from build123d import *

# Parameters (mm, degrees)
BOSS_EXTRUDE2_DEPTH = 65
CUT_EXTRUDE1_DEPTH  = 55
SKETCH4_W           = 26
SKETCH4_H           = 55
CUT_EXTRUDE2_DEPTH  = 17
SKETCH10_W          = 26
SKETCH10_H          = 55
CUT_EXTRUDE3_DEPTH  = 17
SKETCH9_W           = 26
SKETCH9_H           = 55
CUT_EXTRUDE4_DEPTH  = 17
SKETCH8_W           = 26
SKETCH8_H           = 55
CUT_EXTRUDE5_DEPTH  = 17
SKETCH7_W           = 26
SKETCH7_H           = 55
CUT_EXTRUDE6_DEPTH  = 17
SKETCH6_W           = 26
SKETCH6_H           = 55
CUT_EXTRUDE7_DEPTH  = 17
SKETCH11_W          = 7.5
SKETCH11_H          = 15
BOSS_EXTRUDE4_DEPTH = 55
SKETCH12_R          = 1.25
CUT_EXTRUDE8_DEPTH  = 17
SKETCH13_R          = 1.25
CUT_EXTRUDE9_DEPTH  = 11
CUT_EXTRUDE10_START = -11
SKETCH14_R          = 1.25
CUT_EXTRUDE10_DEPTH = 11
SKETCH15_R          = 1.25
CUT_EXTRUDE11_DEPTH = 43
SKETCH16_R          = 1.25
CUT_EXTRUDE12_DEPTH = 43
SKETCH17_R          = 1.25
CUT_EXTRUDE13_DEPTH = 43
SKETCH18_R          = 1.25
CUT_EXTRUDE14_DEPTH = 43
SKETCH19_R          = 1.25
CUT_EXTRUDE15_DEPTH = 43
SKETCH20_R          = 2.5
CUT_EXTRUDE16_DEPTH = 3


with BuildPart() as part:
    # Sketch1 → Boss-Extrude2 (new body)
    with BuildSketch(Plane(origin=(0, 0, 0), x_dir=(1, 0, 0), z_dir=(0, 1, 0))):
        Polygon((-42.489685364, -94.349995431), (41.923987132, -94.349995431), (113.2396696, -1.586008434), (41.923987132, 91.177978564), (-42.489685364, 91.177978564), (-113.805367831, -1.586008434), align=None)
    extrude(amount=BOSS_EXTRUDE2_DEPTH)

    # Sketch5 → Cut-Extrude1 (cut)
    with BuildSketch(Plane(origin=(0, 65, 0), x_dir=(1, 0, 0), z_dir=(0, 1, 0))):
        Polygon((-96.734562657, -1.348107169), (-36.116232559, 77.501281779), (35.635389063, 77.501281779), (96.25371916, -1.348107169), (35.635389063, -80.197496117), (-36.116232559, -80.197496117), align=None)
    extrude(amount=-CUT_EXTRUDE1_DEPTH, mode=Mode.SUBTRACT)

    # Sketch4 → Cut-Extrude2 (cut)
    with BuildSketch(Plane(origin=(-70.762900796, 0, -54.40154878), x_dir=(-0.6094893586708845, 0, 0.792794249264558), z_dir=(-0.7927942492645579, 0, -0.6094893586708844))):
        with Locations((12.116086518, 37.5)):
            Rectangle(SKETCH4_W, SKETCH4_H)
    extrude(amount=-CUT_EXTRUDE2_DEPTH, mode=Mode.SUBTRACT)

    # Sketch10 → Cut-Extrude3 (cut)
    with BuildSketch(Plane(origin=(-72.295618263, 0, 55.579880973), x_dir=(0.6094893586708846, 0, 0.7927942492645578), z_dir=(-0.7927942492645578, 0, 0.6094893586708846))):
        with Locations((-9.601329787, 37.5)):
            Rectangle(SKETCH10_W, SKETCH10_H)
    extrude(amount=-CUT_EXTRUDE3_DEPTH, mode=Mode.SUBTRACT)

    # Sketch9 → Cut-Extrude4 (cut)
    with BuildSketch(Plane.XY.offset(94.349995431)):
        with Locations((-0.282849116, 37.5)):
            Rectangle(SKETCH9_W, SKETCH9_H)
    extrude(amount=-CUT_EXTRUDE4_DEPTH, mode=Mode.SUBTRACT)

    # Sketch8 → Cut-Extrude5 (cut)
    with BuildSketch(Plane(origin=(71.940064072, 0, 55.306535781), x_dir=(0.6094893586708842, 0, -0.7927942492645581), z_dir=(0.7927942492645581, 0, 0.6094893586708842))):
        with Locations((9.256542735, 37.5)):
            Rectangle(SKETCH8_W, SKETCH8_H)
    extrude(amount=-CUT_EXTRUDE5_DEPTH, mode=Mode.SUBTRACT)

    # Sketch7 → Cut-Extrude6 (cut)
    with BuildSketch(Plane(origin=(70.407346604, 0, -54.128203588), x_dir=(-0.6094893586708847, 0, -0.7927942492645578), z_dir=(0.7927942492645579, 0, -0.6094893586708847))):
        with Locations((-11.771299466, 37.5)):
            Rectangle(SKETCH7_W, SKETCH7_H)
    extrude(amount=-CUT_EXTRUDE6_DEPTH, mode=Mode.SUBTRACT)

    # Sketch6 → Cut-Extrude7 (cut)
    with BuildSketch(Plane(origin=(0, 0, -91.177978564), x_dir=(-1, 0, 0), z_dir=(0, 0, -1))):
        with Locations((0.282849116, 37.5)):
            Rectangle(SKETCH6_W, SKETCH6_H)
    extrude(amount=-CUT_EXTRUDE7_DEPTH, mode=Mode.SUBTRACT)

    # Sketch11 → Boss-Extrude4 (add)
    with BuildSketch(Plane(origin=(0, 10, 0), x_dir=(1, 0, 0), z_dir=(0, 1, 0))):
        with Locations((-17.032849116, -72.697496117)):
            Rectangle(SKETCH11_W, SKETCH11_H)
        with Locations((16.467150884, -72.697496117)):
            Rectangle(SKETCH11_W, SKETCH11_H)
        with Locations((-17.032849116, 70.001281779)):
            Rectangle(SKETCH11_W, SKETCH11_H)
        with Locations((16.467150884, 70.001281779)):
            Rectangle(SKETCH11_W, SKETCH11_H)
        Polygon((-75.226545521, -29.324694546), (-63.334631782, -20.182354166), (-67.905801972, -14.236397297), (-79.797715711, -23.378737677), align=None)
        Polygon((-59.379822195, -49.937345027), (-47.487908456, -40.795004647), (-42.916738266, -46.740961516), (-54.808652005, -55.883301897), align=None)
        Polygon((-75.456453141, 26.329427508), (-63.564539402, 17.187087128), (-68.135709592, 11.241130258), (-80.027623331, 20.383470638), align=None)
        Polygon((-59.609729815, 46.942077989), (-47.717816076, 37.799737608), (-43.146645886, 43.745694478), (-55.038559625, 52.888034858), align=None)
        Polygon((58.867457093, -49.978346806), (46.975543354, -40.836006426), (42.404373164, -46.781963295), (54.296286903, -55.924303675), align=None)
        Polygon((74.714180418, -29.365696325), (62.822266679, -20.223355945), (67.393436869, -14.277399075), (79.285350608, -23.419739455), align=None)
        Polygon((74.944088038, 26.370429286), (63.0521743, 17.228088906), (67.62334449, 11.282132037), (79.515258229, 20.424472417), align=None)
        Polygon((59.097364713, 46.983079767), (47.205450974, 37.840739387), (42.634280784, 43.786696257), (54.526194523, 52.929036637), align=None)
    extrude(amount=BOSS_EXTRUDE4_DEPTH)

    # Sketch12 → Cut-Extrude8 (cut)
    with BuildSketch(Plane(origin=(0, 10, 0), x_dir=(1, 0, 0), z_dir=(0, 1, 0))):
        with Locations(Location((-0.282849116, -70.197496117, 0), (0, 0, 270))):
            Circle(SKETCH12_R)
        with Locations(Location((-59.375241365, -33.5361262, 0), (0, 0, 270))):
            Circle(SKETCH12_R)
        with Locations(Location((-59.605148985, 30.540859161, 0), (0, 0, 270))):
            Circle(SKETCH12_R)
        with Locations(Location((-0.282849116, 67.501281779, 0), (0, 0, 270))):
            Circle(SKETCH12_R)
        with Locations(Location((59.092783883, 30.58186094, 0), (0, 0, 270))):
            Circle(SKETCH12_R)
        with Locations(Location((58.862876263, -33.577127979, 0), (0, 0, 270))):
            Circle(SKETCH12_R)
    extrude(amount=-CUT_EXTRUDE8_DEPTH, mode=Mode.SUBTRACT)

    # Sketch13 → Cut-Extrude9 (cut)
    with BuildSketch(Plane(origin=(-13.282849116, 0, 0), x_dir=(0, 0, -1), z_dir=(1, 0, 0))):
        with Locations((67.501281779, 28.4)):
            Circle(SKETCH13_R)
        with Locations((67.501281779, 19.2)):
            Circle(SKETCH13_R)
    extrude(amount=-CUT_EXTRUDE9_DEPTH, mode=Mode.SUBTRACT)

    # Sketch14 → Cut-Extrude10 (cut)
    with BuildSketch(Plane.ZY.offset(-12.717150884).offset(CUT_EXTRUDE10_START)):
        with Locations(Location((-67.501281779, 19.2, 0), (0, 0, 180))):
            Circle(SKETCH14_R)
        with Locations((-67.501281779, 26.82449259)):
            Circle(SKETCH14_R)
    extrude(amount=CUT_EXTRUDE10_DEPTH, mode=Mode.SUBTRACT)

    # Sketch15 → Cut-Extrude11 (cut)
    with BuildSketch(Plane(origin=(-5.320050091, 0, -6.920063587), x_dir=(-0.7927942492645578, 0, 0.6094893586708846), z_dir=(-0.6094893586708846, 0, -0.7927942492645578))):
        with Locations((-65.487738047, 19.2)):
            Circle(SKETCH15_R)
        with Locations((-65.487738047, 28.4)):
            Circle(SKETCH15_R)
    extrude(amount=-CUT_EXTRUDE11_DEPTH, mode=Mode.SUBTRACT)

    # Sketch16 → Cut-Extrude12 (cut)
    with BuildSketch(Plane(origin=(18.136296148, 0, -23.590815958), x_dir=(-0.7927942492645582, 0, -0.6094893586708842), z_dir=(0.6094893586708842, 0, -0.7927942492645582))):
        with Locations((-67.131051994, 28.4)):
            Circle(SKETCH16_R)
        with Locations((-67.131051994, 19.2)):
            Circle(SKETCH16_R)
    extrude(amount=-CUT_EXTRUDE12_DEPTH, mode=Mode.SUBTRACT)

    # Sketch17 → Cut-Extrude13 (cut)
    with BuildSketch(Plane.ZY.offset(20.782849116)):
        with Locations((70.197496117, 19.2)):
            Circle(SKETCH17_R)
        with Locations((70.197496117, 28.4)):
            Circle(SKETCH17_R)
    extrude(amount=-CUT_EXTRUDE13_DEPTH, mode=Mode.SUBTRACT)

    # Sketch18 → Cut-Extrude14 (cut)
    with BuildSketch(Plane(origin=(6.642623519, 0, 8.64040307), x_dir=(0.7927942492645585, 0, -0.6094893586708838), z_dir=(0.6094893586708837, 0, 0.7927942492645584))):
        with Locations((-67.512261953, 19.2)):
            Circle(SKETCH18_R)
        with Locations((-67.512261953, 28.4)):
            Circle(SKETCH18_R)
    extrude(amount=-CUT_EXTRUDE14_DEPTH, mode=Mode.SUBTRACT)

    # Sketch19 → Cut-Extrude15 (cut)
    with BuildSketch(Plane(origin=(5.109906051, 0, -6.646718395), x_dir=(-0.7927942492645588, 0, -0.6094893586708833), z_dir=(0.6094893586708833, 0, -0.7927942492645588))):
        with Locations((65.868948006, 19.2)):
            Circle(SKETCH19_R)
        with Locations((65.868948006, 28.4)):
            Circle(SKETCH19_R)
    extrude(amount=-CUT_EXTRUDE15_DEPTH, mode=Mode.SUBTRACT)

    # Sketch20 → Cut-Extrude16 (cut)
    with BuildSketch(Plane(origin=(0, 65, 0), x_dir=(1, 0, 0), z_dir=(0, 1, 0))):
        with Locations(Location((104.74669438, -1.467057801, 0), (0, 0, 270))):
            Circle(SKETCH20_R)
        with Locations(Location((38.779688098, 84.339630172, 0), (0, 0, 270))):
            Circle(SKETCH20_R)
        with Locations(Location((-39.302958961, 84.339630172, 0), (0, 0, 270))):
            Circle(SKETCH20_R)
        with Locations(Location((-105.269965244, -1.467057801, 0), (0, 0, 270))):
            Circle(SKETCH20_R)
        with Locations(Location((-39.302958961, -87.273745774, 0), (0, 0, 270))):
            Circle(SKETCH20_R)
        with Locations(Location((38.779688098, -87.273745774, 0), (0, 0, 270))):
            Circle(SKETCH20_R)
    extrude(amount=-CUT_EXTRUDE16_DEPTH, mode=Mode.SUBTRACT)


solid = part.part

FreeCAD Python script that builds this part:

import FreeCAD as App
import Part
import Sketcher
Q = App.Units.Quantity

doc = App.newDocument("Part")
body = doc.addObject("PartDesign::Body", "Body")

sketch1 = body.newObject("Sketcher::SketchObject", "Sketch")
sketch1.AttachmentSupport = (doc.getObject("XZ_Plane"), [""])
sketch1.MapMode = "FlatFace"
sketch1.addGeometry(Part.LineSegment(App.Vector(-42.489685, 94.349995, 0), App.Vector(41.923987, 94.349995, 0)), False)
sketch1.addGeometry(Part.LineSegment(App.Vector(41.923987, 94.349995, 0), App.Vector(113.23967, 1.586008, 0)), False)
sketch1.addGeometry(Part.LineSegment(App.Vector(113.23967, 1.586008, 0), App.Vector(41.923987, -91.177979, 0)), False)
sketch1.addGeometry(Part.LineSegment(App.Vector(41.923987, -91.177979, 0), App.Vector(-42.489685, -91.177979, 0)), False)
sketch1.addGeometry(Part.LineSegment(App.Vector(-42.489685, -91.177979, 0), App.Vector(-113.805368, 1.586008, 0)), False)
sketch1.addGeometry(Part.LineSegment(App.Vector(-113.805368, 1.586008, 0), App.Vector(-42.489685, 94.349995, 0)), False)
sketch1.addConstraint(Sketcher.Constraint("Coincident", 0, 2, 1, 1))
sketch1.addConstraint(Sketcher.Constraint("Coincident", 1, 2, 2, 1))
sketch1.addConstraint(Sketcher.Constraint("Coincident", 2, 2, 3, 1))
sketch1.addConstraint(Sketcher.Constraint("Coincident", 3, 2, 4, 1))
sketch1.addConstraint(Sketcher.Constraint("Coincident", 4, 2, 5, 1))
sketch1.addConstraint(Sketcher.Constraint("Coincident", 5, 2, 0, 1))
sketch1.addConstraint(Sketcher.Constraint("Horizontal", 0))
sketch1.addConstraint(Sketcher.Constraint("Horizontal", 3))
sketch1.addConstraint(Sketcher.Constraint("Parallel", 1, 4))
sketch1.addConstraint(Sketcher.Constraint("Parallel", 2, 5))
sketch1.addConstraint(Sketcher.Constraint("Horizontal", 1, 2, 4, 2))
sketch1.addConstraint(Sketcher.Constraint("Vertical", 0, 2, 2, 2))
sketch1.addConstraint(Sketcher.Constraint("Vertical", 3, 2, 5, 2))
sketch1.addConstraint(Sketcher.Constraint("DistanceX", 0, 1, 0, 2, Q("84.413672 mm")))
sketch1.addConstraint(Sketcher.Constraint("DistanceX", -1, 1, 1, 2, Q("113.23967 mm")))
sketch1.addConstraint(Sketcher.Constraint("DistanceY", -1, 1, 1, 2, Q("1.586008 mm")))
sketch1.addConstraint(Sketcher.Constraint("DistanceY", 2, 2, -1, 1, Q("91.177979 mm")))
sketch1.addConstraint(Sketcher.Constraint("Distance", 1, Q("117.008905 mm")))
pad1 = body.newObject("PartDesign::Pad", "Pad")
pad1.Profile = sketch1
pad1.Length = 65
pad1.Reversed = True

sketch2 = body.newObject("Sketcher::SketchObject", "Sketch001")
sketch2.AttachmentSupport = (doc.getObject("XZ_Plane"), [""])
sketch2.MapMode = "FlatFace"
sketch2.AttachmentOffset = App.Placement(App.Vector(0, 0, -65), App.Rotation())
sketch2.addGeometry(Part.LineSegment(App.Vector(-36.116233, -77.501282, 0), App.Vector(-96.734563, 1.348107, 0)), False)
sketch2.addGeometry(Part.LineSegment(App.Vector(-96.734563, 1.348107, 0), App.Vector(-36.116233, 80.197496, 0)), False)
sketch2.addGeometry(Part.LineSegment(App.Vector(-36.116233, 80.197496, 0), App.Vector(35.635389, 80.197496, 0)), False)
sketch2.addGeometry(Part.LineSegment(App.Vector(35.635389, 80.197496, 0), App.Vector(96.253719, 1.348107, 0)), False)
sketch2.addGeometry(Part.LineSegment(App.Vector(96.253719, 1.348107, 0), App.Vector(35.635389, -77.501282, 0)), False)
sketch2.addGeometry(Part.LineSegment(App.Vector(35.635389, -77.501282, 0), App.Vector(-36.116233, -77.501282, 0)), False)
sketch2.addConstraint(Sketcher.Constraint("Coincident", 0, 2, 1, 1))
sketch2.addConstraint(Sketcher.Constraint("Coincident", 1, 2, 2, 1))
sketch2.addConstraint(Sketcher.Constraint("Coincident", 2, 2, 3, 1))
sketch2.addConstraint(Sketcher.Constraint("Coincident", 3, 2, 4, 1))
sketch2.addConstraint(Sketcher.Constraint("Coincident", 4, 2, 5, 1))
sketch2.addConstraint(Sketcher.Constraint("Coincident", 5, 2, 0, 1))
sketch2.addConstraint(Sketcher.Constraint("Horizontal", 2))
sketch2.addConstraint(Sketcher.Constraint("Horizontal", 5))
sketch2.addConstraint(Sketcher.Constraint("Parallel", 0, 3))
sketch2.addConstraint(Sketcher.Constraint("Parallel", 1, 4))
sketch2.addConstraint(Sketcher.Constraint("Horizontal", 0, 2, 3, 2))
sketch2.addConstraint(Sketcher.Constraint("Vertical", 2, 2, 4, 2))
sketch2.addConstraint(Sketcher.Constraint("Vertical", 1, 2, 5, 2))
sketch2.addConstraint(Sketcher.Constraint("DistanceX", 2, 1, 2, 2, Q("71.751622 mm")))
sketch2.addConstraint(Sketcher.Constraint("Distance", 0, Q("99.457569 mm")))
sketch2.addConstraint(Sketcher.Constraint("DistanceX", -1, 1, 2, 2, Q("35.635389 mm")))
sketch2.addConstraint(Sketcher.Constraint("DistanceX", -1, 1, 3, 2, Q("96.253719 mm")))
sketch2.addConstraint(Sketcher.Constraint("DistanceY", 4, 2, -1, 1, Q("77.501282 mm")))
pocket1 = body.newObject("PartDesign::Pocket", "Pocket")
pocket1.Profile = sketch2
pocket1.Length = 55
pocket1.Reversed = True

sketch3 = body.newObject("Sketcher::SketchObject", "Sketch002")
sketch3.Placement = App.Placement(App.Vector(-70.762901, 0, -54.401549), App.Rotation(App.Vector(-0.609489359, 0, 0.792794249), App.Vector(0, 1, 0), App.Vector(-0.792794249, 0, -0.609489359), "ZXY"))
sketch3.addGeometry(Part.LineSegment(App.Vector(-0.883913, 65, 0), App.Vector(-0.883913, 10, 0)), False)
sketch3.addGeometry(Part.LineSegment(App.Vector(-0.883913, 10, 0), App.Vector(25.116087, 10, 0)), False)
sketch3.addGeometry(Part.LineSegment(App.Vector(25.116087, 10, 0), App.Vector(25.116087, 65, 0)), False)
sketch3.addGeometry(Part.LineSegment(App.Vector(25.116087, 65, 0), App.Vector(-0.883913, 65, 0)), False)
sketch3.addConstraint(Sketcher.Constraint("Coincident", 0, 2, 1, 1))
sketch3.addConstraint(Sketcher.Constraint("Coincident", 1, 2, 2, 1))
sketch3.addConstraint(Sketcher.Constraint("Coincident", 2, 2, 3, 1))
sketch3.addConstraint(Sketcher.Constraint("Coincident", 3, 2, 0, 1))
sketch3.addConstraint(Sketcher.Constraint("Vertical", 0))
sketch3.addConstraint(Sketcher.Constraint("Horizontal", 1))
sketch3.addConstraint(Sketcher.Constraint("Vertical", 2))
sketch3.addConstraint(Sketcher.Constraint("Horizontal", 3))
sketch3.addConstraint(Sketcher.Constraint("DistanceX", 1, 1, 1, 2, Q("26 mm")))
sketch3.addConstraint(Sketcher.Constraint("DistanceY", 0, 2, 0, 1, Q("55 mm")))
sketch3.addConstraint(Sketcher.Constraint("DistanceY", -1, 1, 0, 2, Q("10 mm")))
sketch3.addConstraint(Sketcher.Constraint("DistanceX", 0, 2, -1, 1, Q("0.883913 mm")))
pocket2 = body.newObject("PartDesign::Pocket", "Pocket001")
pocket2.Profile = sketch3
pocket2.Length = 17

sketch4 = body.newObject("Sketcher::SketchObject", "Sketch003")
sketch4.Placement = App.Placement(App.Vector(-72.295618, 0, 55.579881), App.Rotation(App.Vector(0.609489359, 0, 0.792794249), App.Vector(0, 1, 0), App.Vector(-0.792794249, 0, 0.609489359), "ZXY"))
sketch4.addGeometry(Part.LineSegment(App.Vector(-22.60133, 65, 0), App.Vector(-22.60133, 10, 0)), False)
sketch4.addGeometry(Part.LineSegment(App.Vector(-22.60133, 10, 0), App.Vector(3.39867, 10, 0)), False)
sketch4.addGeometry(Part.LineSegment(App.Vector(3.39867, 10, 0), App.Vector(3.39867, 65, 0)), False)
sketch4.addGeometry(Part.LineSegment(App.Vector(3.39867, 65, 0), App.Vector(-22.60133, 65, 0)), False)
sketch4.addConstraint(Sketcher.Constraint("Coincident", 0, 2, 1, 1))
sketch4.addConstraint(Sketcher.Constraint("Coincident", 1, 2, 2, 1))
sketch4.addConstraint(Sketcher.Constraint("Coincident", 2, 2, 3, 1))
sketch4.addConstraint(Sketcher.Constraint("Coincident", 3, 2, 0, 1))
sketch4.addConstraint(Sketcher.Constraint("Vertical", 0))
sketch4.addConstraint(Sketcher.Constraint("Horizontal", 1))
sketch4.addConstraint(Sketcher.Constraint("Vertical", 2))
sketch4.addConstraint(Sketcher.Constraint("Horizontal", 3))
sketch4.addConstraint(Sketcher.Constraint("DistanceX", 1, 1, 1, 2, Q("26 mm")))
sketch4.addConstraint(Sketcher.Constraint("DistanceY", 0, 2, 0, 1, Q("55 mm")))
sketch4.addConstraint(Sketcher.Constraint("DistanceY", -1, 1, 0, 2, Q("10 mm")))
sketch4.addConstraint(Sketcher.Constraint("DistanceX", 0, 2, -1, 1, Q("22.60133 mm")))
pocket3 = body.newObject("PartDesign::Pocket", "Pocket002")
pocket3.Profile = sketch4
pocket3.Length = 17

sketch5 = body.newObject("Sketcher::SketchObject", "Sketch004")
sketch5.AttachmentSupport = (doc.getObject("XY_Plane"), [""])
sketch5.MapMode = "FlatFace"
sketch5.AttachmentOffset = App.Placement(App.Vector(0, 0, 94.349995), App.Rotation())
sketch5.addGeometry(Part.LineSegment(App.Vector(-13.282849, 65, 0), App.Vector(-13.282849, 10, 0)), False)
sketch5.addGeometry(Part.LineSegment(App.Vector(-13.282849, 10, 0), App.Vector(12.717151, 10, 0)), False)
sketch5.addGeometry(Part.LineSegment(App.Vector(12.717151, 10, 0), App.Vector(12.717151, 65, 0)), False)
sketch5.addGeometry(Part.LineSegment(App.Vector(12.717151, 65, 0), App.Vector(-13.282849, 65, 0)), False)
sketch5.addConstraint(Sketcher.Constraint("Coincident", 0, 2, 1, 1))
sketch5.addConstraint(Sketcher.Constraint("Coincident", 1, 2, 2, 1))
sketch5.addConstraint(Sketcher.Constraint("Coincident", 2, 2, 3, 1))
sketch5.addConstraint(Sketcher.Constraint("Coincident", 3, 2, 0, 1))
sketch5.addConstraint(Sketcher.Constraint("Vertical", 0))
sketch5.addConstraint(Sketcher.Constraint("Horizontal", 1))
sketch5.addConstraint(Sketcher.Constraint("Vertical", 2))
sketch5.addConstraint(Sketcher.Constraint("Horizontal", 3))
sketch5.addConstraint(Sketcher.Constraint("DistanceX", 1, 1, 1, 2, Q("26 mm")))
sketch5.addConstraint(Sketcher.Constraint("DistanceY", 0, 2, 0, 1, Q("55 mm")))
sketch5.addConstraint(Sketcher.Constraint("DistanceY", -1, 1, 0, 2, Q("10 mm")))
sketch5.addConstraint(Sketcher.Constraint("DistanceX", 0, 2, -1, 1, Q("13.282849 mm")))
pocket4 = body.newObject("PartDesign::Pocket", "Pocket003")
pocket4.Profile = sketch5
pocket4.Length = 17

sketch6 = body.newObject("Sketcher::SketchObject", "Sketch005")
sketch6.Placement = App.Placement(App.Vector(71.940064, 0, 55.306536), App.Rotation(App.Vector(0.609489359, 0, -0.792794249), App.Vector(0, 1, 0), App.Vector(0.792794249, 0, 0.609489359), "ZXY"))
sketch6.addGeometry(Part.LineSegment(App.Vector(-3.743457, 65, 0), App.Vector(-3.743457, 10, 0)), False)
sketch6.addGeometry(Part.LineSegment(App.Vector(-3.743457, 10, 0), App.Vector(22.256543, 10, 0)), False)
sketch6.addGeometry(Part.LineSegment(App.Vector(22.256543, 10, 0), App.Vector(22.256543, 65, 0)), False)
sketch6.addGeometry(Part.LineSegment(App.Vector(22.256543, 65, 0), App.Vector(-3.743457, 65, 0)), False)
sketch6.addConstraint(Sketcher.Constraint("Coincident", 0, 2, 1, 1))
sketch6.addConstraint(Sketcher.Constraint("Coincident", 1, 2, 2, 1))
sketch6.addConstraint(Sketcher.Constraint("Coincident", 2, 2, 3, 1))
sketch6.addConstraint(Sketcher.Constraint("Coincident", 3, 2, 0, 1))
sketch6.addConstraint(Sketcher.Constraint("Vertical", 0))
sketch6.addConstraint(Sketcher.Constraint("Horizontal", 1))
sketch6.addConstraint(Sketcher.Constraint("Vertical", 2))
sketch6.addConstraint(Sketcher.Constraint("Horizontal", 3))
sketch6.addConstraint(Sketcher.Constraint("DistanceX", 1, 1, 1, 2, Q("26 mm")))
sketch6.addConstraint(Sketcher.Constraint("DistanceY", 0, 2, 0, 1, Q("55 mm")))
sketch6.addConstraint(Sketcher.Constraint("DistanceY", -1, 1, 0, 2, Q("10 mm")))
sketch6.addConstraint(Sketcher.Constraint("DistanceX", 0, 2, -1, 1, Q("3.743457 mm")))
pocket5 = body.newObject("PartDesign::Pocket", "Pocket004")
pocket5.Profile = sketch6
pocket5.Length = 17

sketch7 = body.newObject("Sketcher::SketchObject", "Sketch006")
sketch7.Placement = App.Placement(App.Vector(70.407347, 0, -54.128204), App.Rotation(App.Vector(-0.609489359, 0, -0.792794249), App.Vector(0, 1, 0), App.Vector(0.792794249, 0, -0.609489359), "ZXY"))
sketch7.addGeometry(Part.LineSegment(App.Vector(-24.771299, 65, 0), App.Vector(-24.771299, 10, 0)), False)
sketch7.addGeometry(Part.LineSegment(App.Vector(-24.771299, 10, 0), App.Vector(1.228701, 10, 0)), False)
sketch7.addGeometry(Part.LineSegment(App.Vector(1.228701, 10, 0), App.Vector(1.228701, 65, 0)), False)
sketch7.addGeometry(Part.LineSegment(App.Vector(1.228701, 65, 0), App.Vector(-24.771299, 65, 0)), False)
sketch7.addConstraint(Sketcher.Constraint("Coincident", 0, 2, 1, 1))
sketch7.addConstraint(Sketcher.Constraint("Coincident", 1, 2, 2, 1))
sketch7.addConstraint(Sketcher.Constraint("Coincident", 2, 2, 3, 1))
sketch7.addConstraint(Sketcher.Constraint("Coincident", 3, 2, 0, 1))
sketch7.addConstraint(Sketcher.Constraint("Vertical", 0))
sketch7.addConstraint(Sketcher.Constraint("Horizontal", 1))
sketch7.addConstraint(Sketcher.Constraint("Vertical", 2))
sketch7.addConstraint(Sketcher.Constraint("Horizontal", 3))
sketch7.addConstraint(Sketcher.Constraint("DistanceX", 1, 1, 1, 2, Q("26 mm")))
sketch7.addConstraint(Sketcher.Constraint("DistanceY", 0, 2, 0, 1, Q("55 mm")))
sketch7.addConstraint(Sketcher.Constraint("DistanceY", -1, 1, 0, 2, Q("10 mm")))
sketch7.addConstraint(Sketcher.Constraint("DistanceX", 0, 2, -1, 1, Q("24.771299 mm")))
pocket6 = body.newObject("PartDesign::Pocket", "Pocket005")
pocket6.Profile = sketch7
pocket6.Length = 17

sketch8 = body.newObject("Sketcher::SketchObject", "Sketch007")
sketch8.AttachmentSupport = (doc.getObject("XY_Plane"), [""])
sketch8.MapMode = "FlatFace"
sketch8.AttachmentOffset = App.Placement(App.Vector(0, 0, -91.177979), App.Rotation())
sketch8.addGeometry(Part.LineSegment(App.Vector(12.717151, 65, 0), App.Vector(12.717151, 10, 0)), False)
sketch8.addGeometry(Part.LineSegment(App.Vector(12.717151, 10, 0), App.Vector(-13.282849, 10, 0)), False)
sketch8.addGeometry(Part.LineSegment(App.Vector(-13.282849, 10, 0), App.Vector(-13.282849, 65, 0)), False)
sketch8.addGeometry(Part.LineSegment(App.Vector(-13.282849, 65, 0), App.Vector(12.717151, 65, 0)), False)
sketch8.addConstraint(Sketcher.Constraint("Coincident", 0, 2, 1, 1))
sketch8.addConstraint(Sketcher.Constraint("Coincident", 1, 2, 2, 1))
sketch8.addConstraint(Sketcher.Constraint("Coincident", 2, 2, 3, 1))
sketch8.addConstraint(Sketcher.Constraint("Coincident", 3, 2, 0, 1))
sketch8.addConstraint(Sketcher.Constraint("Vertical", 0))
sketch8.addConstraint(Sketcher.Constraint("Horizontal", 1))
sketch8.addConstraint(Sketcher.Constraint("Vertical", 2))
sketch8.addConstraint(Sketcher.Constraint("Horizontal", 3))
sketch8.addConstraint(Sketcher.Constraint("DistanceX", 1, 2, 1, 1, Q("26 mm")))
sketch8.addConstraint(Sketcher.Constraint("DistanceY", 0, 2, 0, 1, Q("55 mm")))
sketch8.addConstraint(Sketcher.Constraint("DistanceY", -1, 1, 0, 2, Q("10 mm")))
sketch8.addConstraint(Sketcher.Constraint("DistanceX", -1, 1, 0, 2, Q("12.717151 mm")))
pocket7 = body.newObject("PartDesign::Pocket", "Pocket006")
pocket7.Profile = sketch8
pocket7.Length = 17
pocket7.Reversed = True

sketch9 = body.newObject("Sketcher::SketchObject", "Sketch008")
sketch9.AttachmentSupport = (doc.getObject("XZ_Plane"), [""])
sketch9.MapMode = "FlatFace"
sketch9.AttachmentOffset = App.Placement(App.Vector(0, 0, -10), App.Rotation())
sketch9.addGeometry(Part.LineSegment(App.Vector(-20.782849, 65.197496, 0), App.Vector(-20.782849, 80.197496, 0)), False)
sketch9.addGeometry(Part.LineSegment(App.Vector(-20.782849, 80.197496, 0), App.Vector(-13.282849, 80.197496, 0)), False)
sketch9.addGeometry(Part.LineSegment(App.Vector(-13.282849, 80.197496, 0), App.Vector(-13.282849, 65.197496, 0)), False)
sketch9.addGeometry(Part.LineSegment(App.Vector(-13.282849, 65.197496, 0), App.Vector(-20.782849, 65.197496, 0)), False)
sketch9.addGeometry(Part.LineSegment(App.Vector(12.717151, 65.197496, 0), App.Vector(12.717151, 80.197496, 0)), False)
sketch9.addGeometry(Part.LineSegment(App.Vector(12.717151, 80.197496, 0), App.Vector(20.217151, 80.197496, 0)), False)
sketch9.addGeometry(Part.LineSegment(App.Vector(20.217151, 80.197496, 0), App.Vector(20.217151, 65.197496, 0)), False)
sketch9.addGeometry(Part.LineSegment(App.Vector(20.217151, 65.197496, 0), App.Vector(12.717151, 65.197496, 0)), False)
sketch9.addGeometry(Part.LineSegment(App.Vector(-20.782849, -77.501282, 0), App.Vector(-20.782849, -62.501282, 0)), False)
sketch9.addGeometry(Part.LineSegment(App.Vector(-20.782849, -62.501282, 0), App.Vector(-13.282849, -62.501282, 0)), False)
sketch9.addGeometry(Part.LineSegment(App.Vector(-13.282849, -62.501282, 0), App.Vector(-13.282849, -77.501282, 0)), False)
sketch9.addGeometry(Part.LineSegment(App.Vector(-13.282849, -77.501282, 0), App.Vector(-20.782849, -77.501282, 0)), False)
sketch9.addGeometry(Part.LineSegment(App.Vector(12.717151, -77.501282, 0), App.Vector(12.717151, -62.501282, 0)), False)
sketch9.addGeometry(Part.LineSegment(App.Vector(12.717151, -62.501282, 0), App.Vector(20.217151, -62.501282, 0)), False)
sketch9.addGeometry(Part.LineSegment(App.Vector(20.217151, -62.501282, 0), App.Vector(20.217151, -77.501282, 0)), False)
sketch9.addGeometry(Part.LineSegment(App.Vector(20.217151, -77.501282, 0), App.Vector(12.717151, -77.501282, 0)), False)
sketch9.addGeometry(Part.LineSegment(App.Vector(-75.226546, 29.324695, 0), App.Vector(-63.334632, 20.182354, 0)), False)
sketch9.addGeometry(Part.LineSegment(App.Vector(-63.334632, 20.182354, 0), App.Vector(-67.905802, 14.236397, 0)), False)
sketch9.addGeometry(Part.LineSegment(App.Vector(-67.905802, 14.236397, 0), App.Vector(-79.797716, 23.378738, 0)), False)
sketch9.addGeometry(Part.LineSegment(App.Vector(-79.797716, 23.378738, 0), App.Vector(-75.226546, 29.324695, 0)), False)
sketch9.addGeometry(Part.LineSegment(App.Vector(-47.487908, 40.795005, 0), App.Vector(-59.379822, 49.937345, 0)), False)
sketch9.addGeometry(Part.LineSegment(App.Vector(-59.379822, 49.937345, 0), App.Vector(-54.808652, 55.883302, 0)), False)
sketch9.addGeometry(Part.LineSegment(App.Vector(-54.808652, 55.883302, 0), App.Vector(-42.916738, 46.740962, 0)), False)
sketch9.addGeometry(Part.LineSegment(App.Vector(-42.916738, 46.740962, 0), App.Vector(-47.487908, 40.795005, 0)), False)
sketch9.addGeometry(Part.LineSegment(App.Vector(-63.564539, -17.187087, 0), App.Vector(-75.456453, -26.329428, 0)), False)
sketch9.addGeometry(Part.LineSegment(App.Vector(-75.456453, -26.329428, 0), App.Vector(-80.027623, -20.383471, 0)), False)
sketch9.addGeometry(Part.LineSegment(App.Vector(-80.027623, -20.383471, 0), App.Vector(-68.13571, -11.24113, 0)), False)
sketch9.addGeometry(Part.LineSegment(App.Vector(-68.13571, -11.24113, 0), App.Vector(-63.564539, -17.187087, 0)), False)
sketch9.addGeometry(Part.LineSegment(App.Vector(-59.60973, -46.942078, 0), App.Vector(-47.717816, -37.799738, 0)), False)
sketch9.addGeometry(Part.LineSegment(App.Vector(-47.717816, -37.799738, 0), App.Vector(-43.146646, -43.745694, 0)), False)
sketch9.addGeometry(Part.LineSegment(App.Vector(-43.146646, -43.745694, 0), App.Vector(-55.03856, -52.888035, 0)), False)
sketch9.addGeometry(Part.LineSegment(App.Vector(-55.03856, -52.888035, 0), App.Vector(-59.60973, -46.942078, 0)), False)
sketch9.addGeometry(Part.LineSegment(App.Vector(58.867457, 49.978347, 0), App.Vector(46.975543, 40.836006, 0)), False)
sketch9.addGeometry(Part.LineSegment(App.Vector(46.975543, 40.836006, 0), App.Vector(42.404373, 46.781963, 0)), False)
sketch9.addGeometry(Part.LineSegment(App.Vector(42.404373, 46.781963, 0), App.Vector(54.296287, 55.924304, 0)), False)
sketch9.addGeometry(Part.LineSegment(App.Vector(54.296287, 55.924304, 0), App.Vector(58.867457, 49.978347, 0)), False)
sketch9.addGeometry(Part.LineSegment(App.Vector(62.822267, 20.223356, 0), App.Vector(74.71418, 29.365696, 0)), False)
sketch9.addGeometry(Part.LineSegment(App.Vector(74.71418, 29.365696, 0), App.Vector(79.285351, 23.419739, 0)), False)
sketch9.addGeometry(Part.LineSegment(App.Vector(79.285351, 23.419739, 0), App.Vector(67.393437, 14.277399, 0)), False)
sketch9.addGeometry(Part.LineSegment(App.Vector(67.393437, 14.277399, 0), App.Vector(62.822267, 20.223356, 0)), False)
sketch9.addGeometry(Part.LineSegment(App.Vector(74.944088, -26.370429, 0), App.Vector(63.052174, -17.228089, 0)), False)
sketch9.addGeometry(Part.LineSegment(App.Vector(63.052174, -17.228089, 0), App.Vector(67.623344, -11.282132, 0)), False)
sketch9.addGeometry(Part.LineSegment(App.Vector(67.623344, -11.282132, 0), App.Vector(79.515258, -20.424472, 0)), False)
sketch9.addGeometry(Part.LineSegment(App.Vector(79.515258, -20.424472, 0), App.Vector(74.944088, -26.370429, 0)), False)
sketch9.addGeometry(Part.LineSegment(App.Vector(47.205451, -37.840739, 0), App.Vector(59.097365, -46.98308, 0)), False)
sketch9.addGeometry(Part.LineSegment(App.Vector(59.097365, -46.98308, 0), App.Vector(54.526195, -52.929037, 0)), False)
sketch9.addGeometry(Part.LineSegment(App.Vector(54.526195, -52.929037, 0), App.Vector(42.634281, -43.786696, 0)), False)
sketch9.addGeometry(Part.LineSegment(App.Vector(42.634281, -43.786696, 0), App.Vector(47.205451, -37.840739, 0)), False)
sketch9.addConstraint(Sketcher.Constraint("Coincident", 0, 2, 1, 1))
sketch9.addConstraint(Sketcher.Constraint("Coincident", 1, 2, 2, 1))
sketch9.addConstraint(Sketcher.Constraint("Coincident", 2, 2, 3, 1))
sketch9.addConstraint(Sketcher.Constraint("Coincident", 3, 2, 0, 1))
sketch9.addConstraint(Sketcher.Constraint("Coincident", 4, 2, 5, 1))
sketch9.addConstraint(Sketcher.Constraint("Coincident", 5, 2, 6, 1))
sketch9.addConstraint(Sketcher.Constraint("Coincident", 6, 2, 7, 1))
sketch9.addConstraint(Sketcher.Constraint("Coincident", 7, 2, 4, 1))
sketch9.addConstraint(Sketcher.Constraint("Coincident", 8, 2, 9, 1))
sketch9.addConstraint(Sketcher.Constraint("Coincident", 9, 2, 10, 1))
sketch9.addConstraint(Sketcher.Constraint("Coincident", 10, 2, 11, 1))
sketch9.addConstraint(Sketcher.Constraint("Coincident", 11, 2, 8, 1))
sketch9.addConstraint(Sketcher.Constraint("Coincident", 12, 2, 13, 1))
sketch9.addConstraint(Sketcher.Constraint("Coincident", 13, 2, 14, 1))
sketch9.addConstraint(Sketcher.Constraint("Coincident", 14, 2, 15, 1))
sketch9.addConstraint(Sketcher.Constraint("Coincident", 15, 2, 12, 1))
sketch9.addConstraint(Sketcher.Constraint("Coincident", 16, 2, 17, 1))
sketch9.addConstraint(Sketcher.Constraint("Coincident", 17, 2, 18, 1))
sketch9.addConstraint(Sketcher.Constraint("Coincident", 18, 2, 19, 1))
sketch9.addConstraint(Sketcher.Constraint("Coincident", 19, 2, 16, 1))
sketch9.addConstraint(Sketcher.Constraint("Coincident", 20, 2, 21, 1))
sketch9.addConstraint(Sketcher.Constraint("Coincident", 21, 2, 22, 1))
sketch9.addConstraint(Sketcher.Constraint("Coincident", 22, 2, 23, 1))
sketch9.addConstraint(Sketcher.Constraint("Coincident", 23, 2, 20, 1))
sketch9.addConstraint(Sketcher.Constraint("Coincident", 24, 2, 25, 1))
sketch9.addConstraint(Sketcher.Constraint("Coincident", 25, 2, 26, 1))
sketch9.addConstraint(Sketcher.Constraint("Coincident", 26, 2, 27, 1))
sketch9.addConstraint(Sketcher.Constraint("Coincident", 27, 2, 24, 1))
sketch9.addConstraint(Sketcher.Constraint("Coincident", 28, 2, 29, 1))
sketch9.addConstraint(Sketcher.Constraint("Coincident", 29, 2, 30, 1))
sketch9.addConstraint(Sketcher.Constraint("Coincident", 30, 2, 31, 1))
sketch9.addConstraint(Sketcher.Constraint("Coincident", 31, 2, 28, 1))
sketch9.addConstraint(Sketcher.Constraint("Coincident", 32, 2, 33, 1))
sketch9.addConstraint(Sketcher.Constraint("Coincident", 33, 2, 34, 1))
sketch9.addConstraint(Sketcher.Constraint("Coincident", 34, 2, 35, 1))
sketch9.addConstraint(Sketcher.Constraint("Coincident", 35, 2, 32, 1))
sketch9.addConstraint(Sketcher.Constraint("Coincident", 36, 2, 37, 1))
sketch9.addConstraint(Sketcher.Constraint("Coincident", 37, 2, 38, 1))
sketch9.addConstraint(Sketcher.Constraint("Coincident", 38, 2, 39, 1))
sketch9.addConstraint(Sketcher.Constraint("Coincident", 39, 2, 36, 1))
sketch9.addConstraint(Sketcher.Constraint("Coincident", 40, 2, 41, 1))
sketch9.addConstraint(Sketcher.Constraint("Coincident", 41, 2, 42, 1))
sketch9.addConstraint(Sketcher.Constraint("Coincident", 42, 2, 43, 1))
sketch9.addConstraint(Sketcher.Constraint("Coincident", 43, 2, 40, 1))
sketch9.addConstraint(Sketcher.Constraint("Coincident", 44, 2, 45, 1))
sketch9.addConstraint(Sketcher.Constraint("Coincident", 45, 2, 46, 1))
sketch9.addConstraint(Sketcher.Constraint("Coincident", 46, 2, 47, 1))
sketch9.addConstraint(Sketcher.Constraint("Coincident", 47, 2, 44, 1))
sketch9.addConstraint(Sketcher.Constraint("Vertical", 0))
sketch9.addConstraint(Sketcher.Constraint("Horizontal", 1))
sketch9.addConstraint(Sketcher.Constraint("Vertical", 2))
sketch9.addConstraint(Sketcher.Constraint("Horizontal", 3))
sketch9.addConstraint(Sketcher.Constraint("Vertical", 4))
sketch9.addConstraint(Sketcher.Constraint("Horizontal", 5))
sketch9.addConstraint(Sketcher.Constraint("Vertical", 6))
sketch9.addConstraint(Sketcher.Constraint("Horizontal", 7))
sketch9.addConstraint(Sketcher.Constraint("Vertical", 8))
sketch9.addConstraint(Sketcher.Constraint("Horizontal", 9))
sketch9.addConstraint(Sketcher.Constraint("Vertical", 10))
sketch9.addConstraint(Sketcher.Constraint("Horizontal", 11))
sketch9.addConstraint(Sketcher.Constraint("Vertical", 12))
sketch9.addConstraint(Sketcher.Constraint("Horizontal", 13))
sketch9.addConstraint(Sketcher.Constraint("Vertical", 14))
sketch9.addConstraint(Sketcher.Constraint("Horizontal", 15))
sketch9.addConstraint(Sketcher.Constraint("Perpendicular", 16, 17))
sketch9.addConstraint(Sketcher.Constraint("Perpendicular", 17, 18))
sketch9.addConstraint(Sketcher.Constraint("Perpendicular", 18, 19))
sketch9.addConstraint(Sketcher.Constraint("Perpendicular", 19, 20))
sketch9.addConstraint(Sketcher.Constraint("Perpendicular", 20, 21))
sketch9.addConstraint(Sketcher.Constraint("Perpendicular", 21, 22))
sketch9.addConstraint(Sketcher.Constraint("Perpendicular", 22, 23))
sketch9.addConstraint(Sketcher.Constraint("Perpendicular", 24, 25))
sketch9.addConstraint(Sketcher.Constraint("Perpendicular", 25, 26))
sketch9.addConstraint(Sketcher.Constraint("Perpendicular", 26, 27))
sketch9.addConstraint(Sketcher.Constraint("Perpendicular", 27, 28))
sketch9.addConstraint(Sketcher.Constraint("Perpendicular", 28, 29))
sketch9.addConstraint(Sketcher.Constraint("Perpendicular", 29, 30))
sketch9.addConstraint(Sketcher.Constraint("Perpendicular", 30, 31))
sketch9.addConstraint(Sketcher.Constraint("Perpendicular", 31, 32))
sketch9.addConstraint(Sketcher.Constraint("Perpendicular", 32, 33))
sketch9.addConstraint(Sketcher.Constraint("Perpendicular", 33, 34))
sketch9.addConstraint(Sketcher.Constraint("Perpendicular", 34, 35))
sketch9.addConstraint(Sketcher.Constraint("Perpendicular", 35, 36))
sketch9.addConstraint(Sketcher.Constraint("Perpendicular", 36, 37))
sketch9.addConstraint(Sketcher.Constraint("Perpendicular", 37, 38))
sketch9.addConstraint(Sketcher.Constraint("Perpendicular", 38, 39))
sketch9.addConstraint(Sketcher.Constraint("Perpendicular", 23, 40))
sketch9.addConstraint(Sketcher.Constraint("Perpendicular", 40, 41))
sketch9.addConstraint(Sketcher.Constraint("Perpendicular", 41, 42))
sketch9.addConstraint(Sketcher.Constraint("Perpendicular", 42, 43))
sketch9.addConstraint(Sketcher.Constraint("Perpendicular", 43, 44))
sketch9.addConstraint(Sketcher.Constraint("Perpendicular", 44, 45))
sketch9.addConstraint(Sketcher.Constraint("Perpendicular", 45, 46))
sketch9.addConstraint(Sketcher.Constraint("Perpendicular", 46, 47))
sketch9.addConstraint(Sketcher.Constraint("Horizontal", 1, 2, 4, 2))
sketch9.addConstraint(Sketcher.Constraint("Horizontal", 3, 2, 6, 2))
sketch9.addConstraint(Sketcher.Constraint("Horizontal", 9, 2, 12, 2))
sketch9.addConstraint(Sketcher.Constraint("Horizontal", 11, 2, 14, 2))
sketch9.addConstraint(Sketcher.Constraint("Vertical", 3, 2, 8, 2))
sketch9.addConstraint(Sketcher.Constraint("Vertical", 2, 2, 9, 2))
sketch9.addConstraint(Sketcher.Constraint("Vertical", 7, 2, 12, 2))
sketch9.addConstraint(Sketcher.Constraint("Vertical", 6, 2, 13, 2))
sketch9.addConstraint(Sketcher.Constraint("Equal", 3, 5))
sketch9.addConstraint(Sketcher.Constraint("Equal", 6, 8))
sketch9.addConstraint(Sketcher.Constraint("Equal", 18, 20))
sketch9.addConstraint(Sketcher.Constraint("Equal", 19, 21))
sketch9.addConstraint(Sketcher.Constraint("Equal", 22, 24))
sketch9.addConstraint(Sketcher.Constraint("Equal", 23, 25))
sketch9.addConstraint(Sketcher.Constraint("Equal", 26, 28))
sketch9.addConstraint(Sketcher.Constraint("Equal", 27, 29))
sketch9.addConstraint(Sketcher.Constraint("Equal", 30, 32))
sketch9.addConstraint(Sketcher.Constraint("Equal", 31, 33))
sketch9.addConstraint(Sketcher.Constraint("Equal", 34, 36))
sketch9.addConstraint(Sketcher.Constraint("Equal", 35, 37))
sketch9.addConstraint(Sketcher.Constraint("Equal", 38, 40))
sketch9.addConstraint(Sketcher.Constraint("Equal", 39, 41))
sketch9.addConstraint(Sketcher.Constraint("Equal", 42, 44))
sketch9.addConstraint(Sketcher.Constraint("Equal", 43, 45))
sketch9.addConstraint(Sketcher.Constraint("DistanceY", 0, 1, 0, 2, Q("15 mm")))
sketch9.addConstraint(Sketcher.Constraint("Distance", 16, Q("15 mm")))
sketch9.addConstraint(Sketcher.Constraint("DistanceX", 1, 1, 1, 2, Q("7.5 mm")))
sketch9.addConstraint(Sketcher.Constraint("DistanceX", 1, 2, 4, 2, Q("26 mm")))
sketch9.addConstraint(Sketcher.Constraint("Distance", 17, Q("7.5 mm")))
sketch9.addConstraint(Sketcher.Constraint("DistanceX", 17, 2, -1, 1, Q("67.905802 mm")))
sketch9.addConstraint(Sketcher.Constraint("DistanceY", -1, 1, 21, 2, Q("55.883302 mm")))
sketch9.addConstraint(Sketcher.Constraint("DistanceY", -1, 1, 38, 2, Q("14.277399 mm")))
sketch9.addConstraint(Sketcher.Constraint("DistanceY", 17, 2, 3, 2, Q("50.961099 mm")))
sketch9.addConstraint(Sketcher.Constraint("DistanceY", 19, 2, 3, 2, Q("35.872802 mm")))
sketch9.addConstraint(Sketcher.Constraint("DistanceY", 36, 2, 6, 2, Q("35.8318 mm")))
sketch9.addConstraint(Sketcher.Constraint("DistanceX", 0, 2, -1, 1, Q("20.782849 mm")))
sketch9.addConstraint(Sketcher.Constraint("DistanceY", 8, 2, -1, 1, Q("62.501282 mm")))
sketch9.addConstraint(Sketcher.Constraint("DistanceX", 22, 2, -1, 1, Q("42.916738 mm")))
sketch9.addConstraint(Sketcher.Constraint("DistanceY", 25, 2, -1, 1, Q("20.383471 mm")))
sketch9.addConstraint(Sketcher.Constraint("DistanceX", 26, 2, -1, 1, Q("68.13571 mm")))
sketch9.addConstraint(Sketcher.Constraint("DistanceY", 26, 2, -1, 1, Q("11.24113 mm")))
sketch9.addConstraint(Sketcher.Constraint("DistanceX", 30, 2, -1, 1, Q("55.03856 mm")))
sketch9.addConstraint(Sketcher.Constraint("DistanceX", -1, 1, 36, 2, Q("74.71418 mm")))
sketch9.addConstraint(Sketcher.Constraint("DistanceY", 40, 2, -1, 1, Q("17.228089 mm")))
sketch9.addConstraint(Sketcher.Constraint("DistanceX", -1, 1, 42, 2, Q("79.515258 mm")))
sketch9.addConstraint(Sketcher.Constraint("DistanceY", 44, 2, -1, 1, Q("46.98308 mm")))
sketch9.addConstraint(Sketcher.Constraint("DistanceX", -1, 1, 46, 2, Q("42.634281 mm")))
sketch9.addConstraint(Sketcher.Constraint("DistanceY", 28, 2, 27, 2, Q("20.61265 mm")))
sketch9.addConstraint(Sketcher.Constraint("DistanceY", 32, 2, 6, 2, Q("24.36149 mm")))
sketch9.addConstraint(Sketcher.Constraint("DistanceX", 35, 2, 38, 2, Q("8.52598 mm")))
pad2 = body.newObject("PartDesign::Pad", "Pad001")
pad2.Profile = sketch9
pad2.Length = 55
pad2.Reversed = True

sketch10 = body.newObject("Sketcher::SketchObject", "Sketch009")
sketch10.AttachmentSupport = (doc.getObject("XZ_Plane"), [""])
sketch10.MapMode = "FlatFace"
sketch10.AttachmentOffset = App.Placement(App.Vector(0, 0, -10), App.Rotation())
sketch10.addGeometry(Part.Circle(App.Vector(-0.282849, 70.197496, 0), App.Vector(0, 0, 1), 1.25), False)
sketch10.addGeometry(Part.Circle(App.Vector(-59.375241, 33.536126, 0), App.Vector(0, 0, 1), 1.25), False)
sketch10.addGeometry(Part.Circle(App.Vector(-59.605149, -30.540859, 0), App.Vector(0, 0, 1), 1.25), False)
sketch10.addGeometry(Part.Circle(App.Vector(-0.282849, -67.501282, 0), App.Vector(0, 0, 1), 1.25), False)
sketch10.addGeometry(Part.Circle(App.Vector(59.092784, -30.581861, 0), App.Vector(0, 0, 1), 1.25), False)
sketch10.addGeometry(Part.Circle(App.Vector(58.862876, 33.577128, 0), App.Vector(0, 0, 1), 1.25), False)
sketch10.addConstraint(Sketcher.Constraint("Equal", 0, 1))
sketch10.addConstraint(Sketcher.Constraint("Equal", 1, 2))
sketch10.addConstraint(Sketcher.Constraint("Equal", 2, 3))
sketch10.addConstraint(Sketcher.Constraint("Equal", 3, 4))
sketch10.addConstraint(Sketcher.Constraint("Equal", 4, 5))
sketch10.addConstraint(Sketcher.Constraint("Vertical", 0, 3, 3, 3))
sketch10.addConstraint(Sketcher.Constraint("Diameter", 0, Q("2.5 mm")))
sketch10.addConstraint(Sketcher.Constraint("DistanceY", 4, 3, 2, 3, Q("0.041002 mm")))
sketch10.addConstraint(Sketcher.Constraint("DistanceY", 1, 3, 5, 3, Q("0.041002 mm")))
sketch10.addConstraint(Sketcher.Constraint("DistanceX", 2, 3, 0, 3, Q("59.3223 mm")))
sketch10.addConstraint(Sketcher.Constraint("DistanceX", 0, 3, -1, 1, Q("0.282849 mm")))
sketch10.addConstraint(Sketcher.Constraint("DistanceX", 1, 3, -1, 1, Q("59.375241 mm")))
sketch10.addConstraint(Sketcher.Constraint("DistanceY", 2, 3, -1, 1, Q("30.540859 mm")))
sketch10.addConstraint(Sketcher.Constraint("DistanceY", 3, 3, -1, 1, Q("67.501282 mm")))
sketch10.addConstraint(Sketcher.Constraint("DistanceY", 1, 3, 0, 3, Q("36.66137 mm")))
sketch10.addConstraint(Sketcher.Constraint("DistanceY", 4, 3, 5, 3, Q("64.158989 mm")))
sketch10.addConstraint(Sketcher.Constraint("DistanceX", -1, 1, 4, 3, Q("59.092784 mm")))
sketch10.addConstraint(Sketcher.Constraint("DistanceX", -1, 1, 5, 3, Q("58.862876 mm")))
pocket8 = body.newObject("PartDesign::Pocket", "Pocket007")
pocket8.Profile = sketch10
pocket8.Length = 17
pocket8.Reversed = True

sketch11 = body.newObject("Sketcher::SketchObject", "Sketch010")
sketch11.AttachmentSupport = (doc.getObject("YZ_Plane"), [""])
sketch11.MapMode = "FlatFace"
sketch11.AttachmentOffset = App.Placement(App.Vector(0, 0, -13.282849), App.Rotation())
sketch11.addGeometry(Part.Circle(App.Vector(28.4, -67.501282, 0), App.Vector(0, 0, 1), 1.25), False)
sketch11.addGeometry(Part.Circle(App.Vector(19.2, -67.501282, 0), App.Vector(0, 0, 1), 1.25), False)
sketch11.addConstraint(Sketcher.Constraint("Equal", 0, 1))
sketch11.addConstraint(Sketcher.Constraint("Horizontal", 0, 3, 1, 3))
sketch11.addConstraint(Sketcher.Constraint("Diameter", 0, Q("2.5 mm")))
sketch11.addConstraint(Sketcher.Constraint("DistanceX", -1, 1, 0, 3, Q("28.4 mm")))
sketch11.addConstraint(Sketcher.Constraint("DistanceX", -1, 1, 1, 3, Q("19.2 mm")))
sketch11.addConstraint(Sketcher.Constraint("DistanceY", 0, 3, -1, 1, Q("67.501282 mm")))
pocket9 = body.newObject("PartDesign::Pocket", "Pocket008")
pocket9.Profile = sketch11
pocket9.Length = 11

sketch12 = body.newObject("Sketcher::SketchObject", "Sketch011")
sketch12.AttachmentSupport = (doc.getObject("YZ_Plane"), [""])
sketch12.MapMode = "FlatFace"
sketch12.AttachmentOffset = App.Placement(App.Vector(0, 0, 23.717151), App.Rotation())
sketch12.addGeometry(Part.Circle(App.Vector(19.2, -67.501282, 0), App.Vector(0, 0, 1), 1.25), False)
sketch12.addGeometry(Part.Circle(App.Vector(26.824493, -67.501282, 0), App.Vector(0, 0, 1), 1.25), False)
sketch12.addConstraint(Sketcher.Constraint("Equal", 0, 1))
sketch12.addConstraint(Sketcher.Constraint("Horizontal", 0, 3, 1, 3))
sketch12.addConstraint(Sketcher.Constraint("Diameter", 0, Q("2.5 mm")))
sketch12.addConstraint(Sketcher.Constraint("DistanceX", -1, 1, 0, 3, Q("19.2 mm")))
sketch12.addConstraint(Sketcher.Constraint("DistanceY", 0, 3, -1, 1, Q("67.501282 mm")))
sketch12.addConstraint(Sketcher.Constraint("DistanceX", -1, 1, 1, 3, Q("26.824493 mm")))
pocket10 = body.newObject("PartDesign::Pocket", "Pocket009")
pocket10.Profile = sketch12
pocket10.Length = 11

sketch13 = body.newObject("Sketcher::SketchObject", "Sketch012")
sketch13.Placement = App.Placement(App.Vector(-5.32005, 0, -6.920064), App.Rotation(App.Vector(-0.792794249, 0, 0.609489359), App.Vector(0, 1, 0), App.Vector(-0.609489359, 0, -0.792794249), "ZXY"))
sketch13.addGeometry(Part.Circle(App.Vector(-65.487738, 19.2, 0), App.Vector(0, 0, 1), 1.25), False)
sketch13.addGeometry(Part.Circle(App.Vector(-65.487738, 28.4, 0), App.Vector(0, 0, 1), 1.25), False)
sketch13.addConstraint(Sketcher.Constraint("Equal", 0, 1))
sketch13.addConstraint(Sketcher.Constraint("Vertical", 0, 3, 1, 3))
sketch13.addConstraint(Sketcher.Constraint("Diameter", 0, Q("2.5 mm")))
sketch13.addConstraint(Sketcher.Constraint("DistanceY", -1, 1, 0, 3, Q("19.2 mm")))
sketch13.addConstraint(Sketcher.Constraint("DistanceY", -1, 1, 1, 3, Q("28.4 mm")))
sketch13.addConstraint(Sketcher.Constraint("DistanceX", 0, 3, -1, 1, Q("65.487738 mm")))
pocket11 = body.newObject("PartDesign::Pocket", "Pocket010")
pocket11.Profile = sketch13
pocket11.Length = 43

sketch14 = body.newObject("Sketcher::SketchObject", "Sketch013")
sketch14.Placement = App.Placement(App.Vector(18.136296, 0, -23.590816), App.Rotation(App.Vector(-0.792794249, 0, -0.609489359), App.Vector(0, 1, 0), App.Vector(0.609489359, 0, -0.792794249), "ZXY"))
sketch14.addGeometry(Part.Circle(App.Vector(-67.131052, 28.4, 0), App.Vector(0, 0, 1), 1.25), False)
sketch14.addGeometry(Part.Circle(App.Vector(-67.131052, 19.2, 0), App.Vector(0, 0, 1), 1.25), False)
sketch14.addConstraint(Sketcher.Constraint("Equal", 0, 1))
sketch14.addConstraint(Sketcher.Constraint("Vertical", 0, 3, 1, 3))
sketch14.addConstraint(Sketcher.Constraint("Diameter", 0, Q("2.5 mm")))
sketch14.addConstraint(Sketcher.Constraint("DistanceY", -1, 1, 0, 3, Q("28.4 mm")))
sketch14.addConstraint(Sketcher.Constraint("DistanceY", -1, 1, 1, 3, Q("19.2 mm")))
sketch14.addConstraint(Sketcher.Constraint("DistanceX", 0, 3, -1, 1, Q("67.131052 mm")))
pocket12 = body.newObject("PartDesign::Pocket", "Pocket011")
pocket12.Profile = sketch14
pocket12.Length = 43

sketch15 = body.newObject("Sketcher::SketchObject", "Sketch014")
sketch15.AttachmentSupport = (doc.getObject("YZ_Plane"), [""])
sketch15.MapMode = "FlatFace"
sketch15.AttachmentOffset = App.Placement(App.Vector(0, 0, -20.782849), App.Rotation())
sketch15.addGeometry(Part.Circle(App.Vector(19.2, 70.197496, 0), App.Vector(0, 0, 1), 1.25), False)
sketch15.addGeometry(Part.Circle(App.Vector(28.4, 70.197496, 0), App.Vector(0, 0, 1), 1.25), False)
sketch15.addConstraint(Sketcher.Constraint("Equal", 0, 1))
sketch15.addConstraint(Sketcher.Constraint("Horizontal", 0, 3, 1, 3))
sketch15.addConstraint(Sketcher.Constraint("Diameter", 0, Q("2.5 mm")))
sketch15.addConstraint(Sketcher.Constraint("DistanceX", -1, 1, 0, 3, Q("19.2 mm")))
sketch15.addConstraint(Sketcher.Constraint("DistanceX", -1, 1, 1, 3, Q("28.4 mm")))
sketch15.addConstraint(Sketcher.Constraint("DistanceY", -1, 1, 0, 3, Q("70.197496 mm")))
pocket13 = body.newObject("PartDesign::Pocket", "Pocket012")
pocket13.Profile = sketch15
pocket13.Length = 43
pocket13.Reversed = True

sketch16 = body.newObject("Sketcher::SketchObject", "Sketch015")
sketch16.Placement = App.Placement(App.Vector(6.642624, 0, 8.640403), App.Rotation(App.Vector(0.792794249, 0, -0.609489359), App.Vector(0, 1, 0), App.Vector(0.609489359, 0, 0.792794249), "ZXY"))
sketch16.addGeometry(Part.Circle(App.Vector(-67.512262, 19.2, 0), App.Vector(0, 0, 1), 1.25), False)
sketch16.addGeometry(Part.Circle(App.Vector(-67.512262, 28.4, 0), App.Vector(0, 0, 1), 1.25), False)
sketch16.addConstraint(Sketcher.Constraint("Equal", 0, 1))
sketch16.addConstraint(Sketcher.Constraint("Vertical", 0, 3, 1, 3))
sketch16.addConstraint(Sketcher.Constraint("Diameter", 0, Q("2.5 mm")))
sketch16.addConstraint(Sketcher.Constraint("DistanceY", -1, 1, 0, 3, Q("19.2 mm")))
sketch16.addConstraint(Sketcher.Constraint("DistanceY", -1, 1, 1, 3, Q("28.4 mm")))
sketch16.addConstraint(Sketcher.Constraint("DistanceX", 0, 3, -1, 1, Q("67.512262 mm")))
pocket14 = body.newObject("PartDesign::Pocket", "Pocket013")
pocket14.Profile = sketch16
pocket14.Length = 43

sketch17 = body.newObject("Sketcher::SketchObject", "Sketch016")
sketch17.Placement = App.Placement(App.Vector(5.109906, 0, -6.646718), App.Rotation(App.Vector(-0.792794249, 0, -0.609489359), App.Vector(0, 1, 0), App.Vector(0.609489359, 0, -0.792794249), "ZXY"))
sketch17.addGeometry(Part.Circle(App.Vector(65.868948, 19.2, 0), App.Vector(0, 0, 1), 1.25), False)
sketch17.addGeometry(Part.Circle(App.Vector(65.868948, 28.4, 0), App.Vector(0, 0, 1), 1.25), False)
sketch17.addConstraint(Sketcher.Constraint("Equal", 0, 1))
sketch17.addConstraint(Sketcher.Constraint("Vertical", 0, 3, 1, 3))
sketch17.addConstraint(Sketcher.Constraint("Diameter", 0, Q("2.5 mm")))
sketch17.addConstraint(Sketcher.Constraint("DistanceY", -1, 1, 0, 3, Q("19.2 mm")))
sketch17.addConstraint(Sketcher.Constraint("DistanceY", -1, 1, 1, 3, Q("28.4 mm")))
sketch17.addConstraint(Sketcher.Constraint("DistanceX", -1, 1, 0, 3, Q("65.868948 mm")))
pocket15 = body.newObject("PartDesign::Pocket", "Pocket014")
pocket15.Profile = sketch17
pocket15.Length = 43

sketch18 = body.newObject("Sketcher::SketchObject", "Sketch017")
sketch18.AttachmentSupport = (doc.getObject("XZ_Plane"), [""])
sketch18.MapMode = "FlatFace"
sketch18.AttachmentOffset = App.Placement(App.Vector(0, 0, -65), App.Rotation())
sketch18.addGeometry(Part.Circle(App.Vector(104.746694, 1.467058, 0), App.Vector(0, 0, 1), 2.5), False)
sketch18.addGeometry(Part.Circle(App.Vector(38.779688, -84.33963, 0), App.Vector(0, 0, 1), 2.5), False)
sketch18.addGeometry(Part.Circle(App.Vector(-39.302959, -84.33963, 0), App.Vector(0, 0, 1), 2.5), False)
sketch18.addGeometry(Part.Circle(App.Vector(-105.269965, 1.467058, 0), App.Vector(0, 0, 1), 2.5), False)
sketch18.addGeometry(Part.Circle(App.Vector(-39.302959, 87.273746, 0), App.Vector(0, 0, 1), 2.5), False)
sketch18.addGeometry(Part.Circle(App.Vector(38.779688, 87.273746, 0), App.Vector(0, 0, 1), 2.5), False)
sketch18.addConstraint(Sketcher.Constraint("Equal", 0, 1))
sketch18.addConstraint(Sketcher.Constraint("Equal", 1, 2))
sketch18.addConstraint(Sketcher.Constraint("Equal", 2, 3))
sketch18.addConstraint(Sketcher.Constraint("Equal", 3, 4))
sketch18.addConstraint(Sketcher.Constraint("Equal", 4, 5))
sketch18.addConstraint(Sketcher.Constraint("Horizontal", 1, 3, 2, 3))
sketch18.addConstraint(Sketcher.Constraint("Horizontal", 0, 3, 3, 3))
sketch18.addConstraint(Sketcher.Constraint("Horizontal", 4, 3, 5, 3))
sketch18.addConstraint(Sketcher.Constraint("Vertical", 2, 3, 4, 3))
sketch18.addConstraint(Sketcher.Constraint("Vertical", 1, 3, 5, 3))
sketch18.addConstraint(Sketcher.Constraint("Diameter", 0, Q("5 mm")))
sketch18.addConstraint(Sketcher.Constraint("DistanceX", -1, 1, 1, 3, Q("38.779688 mm")))
sketch18.addConstraint(Sketcher.Constraint("DistanceY", 1, 3, -1, 1, Q("84.33963 mm")))
sketch18.addConstraint(Sketcher.Constraint("DistanceX", 2, 3, -1, 1, Q("39.302959 mm")))
sketch18.addConstraint(Sketcher.Constraint("DistanceX", 3, 3, 0, 3, Q("210.01666 mm")))
sketch18.addConstraint(Sketcher.Constraint("DistanceX", -1, 1, 0, 3, Q("104.746694 mm")))
sketch18.addConstraint(Sketcher.Constraint("DistanceY", -1, 1, 0, 3, Q("1.467058 mm")))
sketch18.addConstraint(Sketcher.Constraint("DistanceY", -1, 1, 4, 3, Q("87.273746 mm")))
pocket16 = body.newObject("PartDesign::Pocket", "Pocket015")
pocket16.Profile = sketch18
pocket16.Length = 3
pocket16.Reversed = True

doc.recompute()
